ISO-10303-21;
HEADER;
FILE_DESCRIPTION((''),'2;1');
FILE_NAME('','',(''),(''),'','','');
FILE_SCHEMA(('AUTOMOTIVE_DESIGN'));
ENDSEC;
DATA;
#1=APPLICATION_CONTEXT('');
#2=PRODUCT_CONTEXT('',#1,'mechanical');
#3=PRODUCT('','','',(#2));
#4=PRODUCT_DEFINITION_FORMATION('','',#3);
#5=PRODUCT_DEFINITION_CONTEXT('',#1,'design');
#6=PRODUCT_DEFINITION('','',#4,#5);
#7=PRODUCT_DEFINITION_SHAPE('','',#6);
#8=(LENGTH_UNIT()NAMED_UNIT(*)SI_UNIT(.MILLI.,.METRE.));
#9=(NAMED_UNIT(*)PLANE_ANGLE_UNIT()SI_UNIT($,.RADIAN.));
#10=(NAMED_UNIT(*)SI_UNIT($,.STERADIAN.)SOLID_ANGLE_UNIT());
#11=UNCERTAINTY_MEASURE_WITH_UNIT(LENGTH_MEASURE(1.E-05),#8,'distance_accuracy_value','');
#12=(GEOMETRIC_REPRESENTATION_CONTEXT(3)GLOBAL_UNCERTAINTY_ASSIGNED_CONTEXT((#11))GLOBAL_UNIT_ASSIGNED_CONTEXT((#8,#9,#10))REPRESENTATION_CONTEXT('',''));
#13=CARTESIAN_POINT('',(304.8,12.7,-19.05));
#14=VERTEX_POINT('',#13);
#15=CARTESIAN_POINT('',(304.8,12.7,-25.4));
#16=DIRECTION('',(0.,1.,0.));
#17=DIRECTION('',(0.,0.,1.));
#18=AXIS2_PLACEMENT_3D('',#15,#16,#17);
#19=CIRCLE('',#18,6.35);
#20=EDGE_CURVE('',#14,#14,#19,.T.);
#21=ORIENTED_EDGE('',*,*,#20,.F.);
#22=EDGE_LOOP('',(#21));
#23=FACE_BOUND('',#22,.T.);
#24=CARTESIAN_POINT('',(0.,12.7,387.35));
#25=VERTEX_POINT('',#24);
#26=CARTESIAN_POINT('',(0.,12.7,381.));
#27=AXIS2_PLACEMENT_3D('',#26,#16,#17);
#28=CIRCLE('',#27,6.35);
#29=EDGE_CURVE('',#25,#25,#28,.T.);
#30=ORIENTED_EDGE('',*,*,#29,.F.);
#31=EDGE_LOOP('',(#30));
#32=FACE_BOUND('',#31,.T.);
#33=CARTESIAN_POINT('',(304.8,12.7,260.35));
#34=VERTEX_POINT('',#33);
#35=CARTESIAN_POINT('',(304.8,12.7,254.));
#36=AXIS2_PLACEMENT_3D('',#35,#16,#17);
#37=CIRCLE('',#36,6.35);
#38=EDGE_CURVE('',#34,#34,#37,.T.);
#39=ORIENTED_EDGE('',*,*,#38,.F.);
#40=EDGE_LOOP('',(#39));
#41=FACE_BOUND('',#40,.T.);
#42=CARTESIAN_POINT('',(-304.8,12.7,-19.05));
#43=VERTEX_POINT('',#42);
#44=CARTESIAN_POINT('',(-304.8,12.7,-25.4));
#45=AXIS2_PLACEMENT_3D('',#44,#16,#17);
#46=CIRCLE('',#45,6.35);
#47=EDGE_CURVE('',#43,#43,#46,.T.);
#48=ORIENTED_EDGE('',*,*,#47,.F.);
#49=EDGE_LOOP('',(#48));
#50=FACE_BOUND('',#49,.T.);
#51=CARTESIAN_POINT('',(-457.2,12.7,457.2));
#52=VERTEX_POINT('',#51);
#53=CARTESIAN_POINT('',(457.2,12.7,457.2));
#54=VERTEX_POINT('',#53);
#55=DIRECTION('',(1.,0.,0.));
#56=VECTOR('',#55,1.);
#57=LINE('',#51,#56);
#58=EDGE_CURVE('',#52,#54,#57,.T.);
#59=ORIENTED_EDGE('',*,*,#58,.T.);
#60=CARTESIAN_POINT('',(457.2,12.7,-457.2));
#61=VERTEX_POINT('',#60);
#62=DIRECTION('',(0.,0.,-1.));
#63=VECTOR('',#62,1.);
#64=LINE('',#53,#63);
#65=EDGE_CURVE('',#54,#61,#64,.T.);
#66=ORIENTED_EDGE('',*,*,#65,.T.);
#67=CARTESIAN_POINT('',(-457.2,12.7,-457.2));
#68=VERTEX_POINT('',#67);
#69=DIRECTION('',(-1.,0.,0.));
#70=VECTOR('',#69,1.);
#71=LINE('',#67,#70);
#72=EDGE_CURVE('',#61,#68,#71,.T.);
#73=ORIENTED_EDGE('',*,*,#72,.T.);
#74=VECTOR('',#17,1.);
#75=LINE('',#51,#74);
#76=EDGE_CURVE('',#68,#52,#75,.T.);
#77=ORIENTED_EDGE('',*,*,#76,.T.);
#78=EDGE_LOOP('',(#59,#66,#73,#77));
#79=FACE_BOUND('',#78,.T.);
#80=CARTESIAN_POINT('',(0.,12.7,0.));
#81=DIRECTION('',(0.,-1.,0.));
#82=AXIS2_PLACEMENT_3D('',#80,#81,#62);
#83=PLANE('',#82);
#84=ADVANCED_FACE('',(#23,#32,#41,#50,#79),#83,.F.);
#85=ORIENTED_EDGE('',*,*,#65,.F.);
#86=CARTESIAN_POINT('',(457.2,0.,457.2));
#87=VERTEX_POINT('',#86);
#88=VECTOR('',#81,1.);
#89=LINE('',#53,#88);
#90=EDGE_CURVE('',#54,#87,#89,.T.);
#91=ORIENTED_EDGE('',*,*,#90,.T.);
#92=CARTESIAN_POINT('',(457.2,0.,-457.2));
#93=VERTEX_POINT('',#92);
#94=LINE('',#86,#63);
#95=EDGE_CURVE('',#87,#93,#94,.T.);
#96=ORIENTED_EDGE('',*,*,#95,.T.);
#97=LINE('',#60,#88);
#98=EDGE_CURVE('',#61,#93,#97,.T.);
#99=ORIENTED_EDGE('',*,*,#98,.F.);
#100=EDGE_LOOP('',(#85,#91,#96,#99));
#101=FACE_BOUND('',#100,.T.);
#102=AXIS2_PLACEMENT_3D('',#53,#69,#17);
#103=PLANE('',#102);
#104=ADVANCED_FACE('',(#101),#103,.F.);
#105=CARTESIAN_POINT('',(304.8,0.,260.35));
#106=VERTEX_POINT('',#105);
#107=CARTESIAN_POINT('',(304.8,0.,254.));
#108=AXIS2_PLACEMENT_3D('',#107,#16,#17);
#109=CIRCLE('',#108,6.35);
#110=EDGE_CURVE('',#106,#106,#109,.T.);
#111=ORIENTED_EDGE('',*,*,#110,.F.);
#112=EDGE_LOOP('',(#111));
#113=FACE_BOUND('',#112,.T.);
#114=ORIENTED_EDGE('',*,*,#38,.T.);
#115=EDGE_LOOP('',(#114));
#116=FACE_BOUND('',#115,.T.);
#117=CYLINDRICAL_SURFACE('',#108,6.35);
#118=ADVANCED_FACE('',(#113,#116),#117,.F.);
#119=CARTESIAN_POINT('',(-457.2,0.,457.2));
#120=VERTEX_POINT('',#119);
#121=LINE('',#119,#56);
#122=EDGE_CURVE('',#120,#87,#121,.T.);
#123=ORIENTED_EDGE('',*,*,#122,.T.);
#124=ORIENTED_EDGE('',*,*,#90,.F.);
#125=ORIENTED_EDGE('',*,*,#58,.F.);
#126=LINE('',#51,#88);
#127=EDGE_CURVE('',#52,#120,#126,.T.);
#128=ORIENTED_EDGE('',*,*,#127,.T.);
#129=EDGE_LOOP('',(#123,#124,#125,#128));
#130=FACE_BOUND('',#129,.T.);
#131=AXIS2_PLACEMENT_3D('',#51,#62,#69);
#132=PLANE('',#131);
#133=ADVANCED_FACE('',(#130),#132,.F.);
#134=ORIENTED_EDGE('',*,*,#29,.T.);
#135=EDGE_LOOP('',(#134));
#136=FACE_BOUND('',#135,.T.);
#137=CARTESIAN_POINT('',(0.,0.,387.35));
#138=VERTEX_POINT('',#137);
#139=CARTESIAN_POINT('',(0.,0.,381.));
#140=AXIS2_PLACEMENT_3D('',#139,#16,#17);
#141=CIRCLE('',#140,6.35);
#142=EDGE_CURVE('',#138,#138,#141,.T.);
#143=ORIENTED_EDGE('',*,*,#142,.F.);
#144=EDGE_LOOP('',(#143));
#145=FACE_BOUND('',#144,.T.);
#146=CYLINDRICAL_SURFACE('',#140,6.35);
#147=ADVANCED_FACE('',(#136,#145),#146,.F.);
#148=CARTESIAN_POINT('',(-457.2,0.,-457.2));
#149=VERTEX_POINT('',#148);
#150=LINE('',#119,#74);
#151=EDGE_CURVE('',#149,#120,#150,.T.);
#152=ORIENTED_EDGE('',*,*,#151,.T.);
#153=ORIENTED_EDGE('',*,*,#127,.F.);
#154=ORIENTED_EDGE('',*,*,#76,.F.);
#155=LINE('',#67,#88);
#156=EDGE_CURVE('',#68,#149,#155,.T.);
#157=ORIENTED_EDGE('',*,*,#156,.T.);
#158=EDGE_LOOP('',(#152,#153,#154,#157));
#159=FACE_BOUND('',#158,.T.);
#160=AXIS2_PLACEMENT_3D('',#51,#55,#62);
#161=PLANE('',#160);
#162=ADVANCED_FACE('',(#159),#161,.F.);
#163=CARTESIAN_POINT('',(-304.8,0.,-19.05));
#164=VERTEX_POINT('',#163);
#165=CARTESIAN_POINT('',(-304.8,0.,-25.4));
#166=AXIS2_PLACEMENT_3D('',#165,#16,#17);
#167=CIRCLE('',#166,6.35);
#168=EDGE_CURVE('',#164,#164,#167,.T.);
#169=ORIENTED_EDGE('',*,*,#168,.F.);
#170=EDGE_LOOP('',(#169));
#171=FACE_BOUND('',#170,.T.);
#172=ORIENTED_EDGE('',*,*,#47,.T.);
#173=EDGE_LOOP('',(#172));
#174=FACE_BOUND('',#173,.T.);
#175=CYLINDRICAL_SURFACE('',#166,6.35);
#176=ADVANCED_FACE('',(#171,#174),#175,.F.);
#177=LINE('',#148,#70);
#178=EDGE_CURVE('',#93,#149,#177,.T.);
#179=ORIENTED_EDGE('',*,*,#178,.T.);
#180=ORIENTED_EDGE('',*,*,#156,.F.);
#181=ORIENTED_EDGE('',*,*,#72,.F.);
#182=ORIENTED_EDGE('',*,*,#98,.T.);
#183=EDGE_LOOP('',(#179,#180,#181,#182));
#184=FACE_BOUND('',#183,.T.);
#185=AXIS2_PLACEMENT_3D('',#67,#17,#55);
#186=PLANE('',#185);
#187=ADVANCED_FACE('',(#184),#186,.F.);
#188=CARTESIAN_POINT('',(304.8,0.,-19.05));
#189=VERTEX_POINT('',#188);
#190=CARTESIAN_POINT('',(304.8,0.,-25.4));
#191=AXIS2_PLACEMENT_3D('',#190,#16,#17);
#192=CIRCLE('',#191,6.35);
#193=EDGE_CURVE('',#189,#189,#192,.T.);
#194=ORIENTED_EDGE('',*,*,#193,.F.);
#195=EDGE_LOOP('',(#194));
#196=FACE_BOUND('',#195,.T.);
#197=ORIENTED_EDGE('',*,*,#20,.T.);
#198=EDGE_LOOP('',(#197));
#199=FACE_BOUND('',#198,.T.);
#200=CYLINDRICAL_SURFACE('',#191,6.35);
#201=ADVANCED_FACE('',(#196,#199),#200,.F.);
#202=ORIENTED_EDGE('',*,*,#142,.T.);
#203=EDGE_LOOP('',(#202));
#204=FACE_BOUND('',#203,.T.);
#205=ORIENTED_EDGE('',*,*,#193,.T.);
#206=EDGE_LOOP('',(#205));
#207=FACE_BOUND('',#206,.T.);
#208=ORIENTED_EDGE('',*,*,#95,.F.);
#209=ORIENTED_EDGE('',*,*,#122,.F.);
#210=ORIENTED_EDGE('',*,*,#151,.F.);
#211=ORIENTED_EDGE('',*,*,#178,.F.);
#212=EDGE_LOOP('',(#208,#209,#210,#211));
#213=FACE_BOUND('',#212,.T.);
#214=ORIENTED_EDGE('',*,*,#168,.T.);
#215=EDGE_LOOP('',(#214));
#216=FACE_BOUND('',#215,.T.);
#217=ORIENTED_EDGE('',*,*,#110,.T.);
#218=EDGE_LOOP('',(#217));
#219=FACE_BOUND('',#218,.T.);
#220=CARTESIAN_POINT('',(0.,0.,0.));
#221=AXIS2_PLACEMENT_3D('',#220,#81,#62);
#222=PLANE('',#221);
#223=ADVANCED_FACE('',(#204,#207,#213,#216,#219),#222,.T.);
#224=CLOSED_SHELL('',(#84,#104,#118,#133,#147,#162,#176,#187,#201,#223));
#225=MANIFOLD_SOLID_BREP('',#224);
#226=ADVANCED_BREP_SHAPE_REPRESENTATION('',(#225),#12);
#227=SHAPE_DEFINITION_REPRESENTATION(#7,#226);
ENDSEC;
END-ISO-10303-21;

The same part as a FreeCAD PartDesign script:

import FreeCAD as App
import Part
import Sketcher
from FreeCAD import Vector
Q = App.Units.Quantity


def add_polygon(sketch, points):
    """Adds a closed chain of lines whose ends are joined by coincident constraints."""
    first, n = sketch.GeometryCount, len(points)
    for a, b in zip(points, points[1:] + points[:1]):
        sketch.addGeometry(Part.LineSegment(App.Vector(*a, 0), App.Vector(*b, 0)), False)
    for i in range(n):
        sketch.addConstraint(Sketcher.Constraint("Coincident", first + i, 2, first + (i + 1) % n, 1))

doc = App.newDocument("Part")
body = doc.addObject("PartDesign::Body", "Body")

# Sketch on XZ plane
sketch1 = body.newObject("Sketcher::SketchObject", "Sketch")
sketch1.AttachmentSupport = (doc.getObject("XZ_Plane"), [""])
sketch1.MapMode = "FlatFace"
add_polygon(sketch1, [(-457, -457), (-457, 457), (457, 457), (457, -457)])  # lines 0-3
sketch1.addConstraint(Sketcher.Constraint("Vertical", 0))
sketch1.addConstraint(Sketcher.Constraint("Horizontal", 1))
sketch1.addConstraint(Sketcher.Constraint("Vertical", 2))
sketch1.addConstraint(Sketcher.Constraint("Horizontal", 3))
sketch1.addConstraint(Sketcher.Constraint("Symmetric", 0, 2, 2, 2, -1, 1))
sketch1.addConstraint(Sketcher.Constraint("Equal", 3, 0))
sketch1.addConstraint(Sketcher.Constraint("DistanceX", 1, 1, 1, 2, Q("36 in")))
pad1 = body.newObject("PartDesign::Pad", "Pad")
pad1.Profile = sketch1
pad1.Length = Q("0.5 in")
pad1.Reversed = True

# Sketch on XZ plane
sketch2 = body.newObject("Sketcher::SketchObject", "Sketch001")
sketch2.AttachmentSupport = (doc.getObject("XZ_Plane"), [""])
sketch2.MapMode = "FlatFace"
sketch2.AttachmentOffset = App.Placement(Vector(0, 0, -0.5 * 25.4), App.Rotation())
sketch2.addGeometry(Part.Circle(Vector(0, 381, 0), Vector(0, 0, 1), 6), False)
sketch2.addGeometry(Part.Circle(Vector(305, 254, 0), Vector(0, 0, 1), 6), False)
sketch2.addGeometry(Part.Circle(Vector(305, -25, 0), Vector(0, 0, 1), 6), False)
sketch2.addGeometry(Part.Circle(Vector(-305, -25, 0), Vector(0, 0, 1), 6), False)
sketch2.addConstraint(Sketcher.Constraint("Equal", 0, 1))
sketch2.addConstraint(Sketcher.Constraint("Equal", 1, 2))
sketch2.addConstraint(Sketcher.Constraint("Equal", 2, 3))
sketch2.addConstraint(Sketcher.Constraint("Symmetric", 2, 3, 3, 3, -2))
sketch2.addConstraint(Sketcher.Constraint("PointOnObject", 0, 3, -2))
sketch2.addConstraint(Sketcher.Constraint("Vertical", 1, 3, 2, 3))
sketch2.addConstraint(Sketcher.Constraint("Diameter", 0, Q("0.5 in")))
sketch2.addConstraint(Sketcher.Constraint("DistanceY", -1, 1, 0, 3, Q("15 in")))
sketch2.addConstraint(Sketcher.Constraint("DistanceX", -1, 1, 1, 3, Q("12 in")))
sketch2.addConstraint(Sketcher.Constraint("DistanceY", -1, 1, 1, 3, Q("10 in")))
sketch2.addConstraint(Sketcher.Constraint("DistanceY", 2, 3, -1, 1, Q("1 in")))
pocket1 = body.newObject("PartDesign::Pocket", "Pocket")
pocket1.Profile = sketch2
pocket1.Type = "ThroughAll"
pocket1.Reversed = True

doc.recompute()
